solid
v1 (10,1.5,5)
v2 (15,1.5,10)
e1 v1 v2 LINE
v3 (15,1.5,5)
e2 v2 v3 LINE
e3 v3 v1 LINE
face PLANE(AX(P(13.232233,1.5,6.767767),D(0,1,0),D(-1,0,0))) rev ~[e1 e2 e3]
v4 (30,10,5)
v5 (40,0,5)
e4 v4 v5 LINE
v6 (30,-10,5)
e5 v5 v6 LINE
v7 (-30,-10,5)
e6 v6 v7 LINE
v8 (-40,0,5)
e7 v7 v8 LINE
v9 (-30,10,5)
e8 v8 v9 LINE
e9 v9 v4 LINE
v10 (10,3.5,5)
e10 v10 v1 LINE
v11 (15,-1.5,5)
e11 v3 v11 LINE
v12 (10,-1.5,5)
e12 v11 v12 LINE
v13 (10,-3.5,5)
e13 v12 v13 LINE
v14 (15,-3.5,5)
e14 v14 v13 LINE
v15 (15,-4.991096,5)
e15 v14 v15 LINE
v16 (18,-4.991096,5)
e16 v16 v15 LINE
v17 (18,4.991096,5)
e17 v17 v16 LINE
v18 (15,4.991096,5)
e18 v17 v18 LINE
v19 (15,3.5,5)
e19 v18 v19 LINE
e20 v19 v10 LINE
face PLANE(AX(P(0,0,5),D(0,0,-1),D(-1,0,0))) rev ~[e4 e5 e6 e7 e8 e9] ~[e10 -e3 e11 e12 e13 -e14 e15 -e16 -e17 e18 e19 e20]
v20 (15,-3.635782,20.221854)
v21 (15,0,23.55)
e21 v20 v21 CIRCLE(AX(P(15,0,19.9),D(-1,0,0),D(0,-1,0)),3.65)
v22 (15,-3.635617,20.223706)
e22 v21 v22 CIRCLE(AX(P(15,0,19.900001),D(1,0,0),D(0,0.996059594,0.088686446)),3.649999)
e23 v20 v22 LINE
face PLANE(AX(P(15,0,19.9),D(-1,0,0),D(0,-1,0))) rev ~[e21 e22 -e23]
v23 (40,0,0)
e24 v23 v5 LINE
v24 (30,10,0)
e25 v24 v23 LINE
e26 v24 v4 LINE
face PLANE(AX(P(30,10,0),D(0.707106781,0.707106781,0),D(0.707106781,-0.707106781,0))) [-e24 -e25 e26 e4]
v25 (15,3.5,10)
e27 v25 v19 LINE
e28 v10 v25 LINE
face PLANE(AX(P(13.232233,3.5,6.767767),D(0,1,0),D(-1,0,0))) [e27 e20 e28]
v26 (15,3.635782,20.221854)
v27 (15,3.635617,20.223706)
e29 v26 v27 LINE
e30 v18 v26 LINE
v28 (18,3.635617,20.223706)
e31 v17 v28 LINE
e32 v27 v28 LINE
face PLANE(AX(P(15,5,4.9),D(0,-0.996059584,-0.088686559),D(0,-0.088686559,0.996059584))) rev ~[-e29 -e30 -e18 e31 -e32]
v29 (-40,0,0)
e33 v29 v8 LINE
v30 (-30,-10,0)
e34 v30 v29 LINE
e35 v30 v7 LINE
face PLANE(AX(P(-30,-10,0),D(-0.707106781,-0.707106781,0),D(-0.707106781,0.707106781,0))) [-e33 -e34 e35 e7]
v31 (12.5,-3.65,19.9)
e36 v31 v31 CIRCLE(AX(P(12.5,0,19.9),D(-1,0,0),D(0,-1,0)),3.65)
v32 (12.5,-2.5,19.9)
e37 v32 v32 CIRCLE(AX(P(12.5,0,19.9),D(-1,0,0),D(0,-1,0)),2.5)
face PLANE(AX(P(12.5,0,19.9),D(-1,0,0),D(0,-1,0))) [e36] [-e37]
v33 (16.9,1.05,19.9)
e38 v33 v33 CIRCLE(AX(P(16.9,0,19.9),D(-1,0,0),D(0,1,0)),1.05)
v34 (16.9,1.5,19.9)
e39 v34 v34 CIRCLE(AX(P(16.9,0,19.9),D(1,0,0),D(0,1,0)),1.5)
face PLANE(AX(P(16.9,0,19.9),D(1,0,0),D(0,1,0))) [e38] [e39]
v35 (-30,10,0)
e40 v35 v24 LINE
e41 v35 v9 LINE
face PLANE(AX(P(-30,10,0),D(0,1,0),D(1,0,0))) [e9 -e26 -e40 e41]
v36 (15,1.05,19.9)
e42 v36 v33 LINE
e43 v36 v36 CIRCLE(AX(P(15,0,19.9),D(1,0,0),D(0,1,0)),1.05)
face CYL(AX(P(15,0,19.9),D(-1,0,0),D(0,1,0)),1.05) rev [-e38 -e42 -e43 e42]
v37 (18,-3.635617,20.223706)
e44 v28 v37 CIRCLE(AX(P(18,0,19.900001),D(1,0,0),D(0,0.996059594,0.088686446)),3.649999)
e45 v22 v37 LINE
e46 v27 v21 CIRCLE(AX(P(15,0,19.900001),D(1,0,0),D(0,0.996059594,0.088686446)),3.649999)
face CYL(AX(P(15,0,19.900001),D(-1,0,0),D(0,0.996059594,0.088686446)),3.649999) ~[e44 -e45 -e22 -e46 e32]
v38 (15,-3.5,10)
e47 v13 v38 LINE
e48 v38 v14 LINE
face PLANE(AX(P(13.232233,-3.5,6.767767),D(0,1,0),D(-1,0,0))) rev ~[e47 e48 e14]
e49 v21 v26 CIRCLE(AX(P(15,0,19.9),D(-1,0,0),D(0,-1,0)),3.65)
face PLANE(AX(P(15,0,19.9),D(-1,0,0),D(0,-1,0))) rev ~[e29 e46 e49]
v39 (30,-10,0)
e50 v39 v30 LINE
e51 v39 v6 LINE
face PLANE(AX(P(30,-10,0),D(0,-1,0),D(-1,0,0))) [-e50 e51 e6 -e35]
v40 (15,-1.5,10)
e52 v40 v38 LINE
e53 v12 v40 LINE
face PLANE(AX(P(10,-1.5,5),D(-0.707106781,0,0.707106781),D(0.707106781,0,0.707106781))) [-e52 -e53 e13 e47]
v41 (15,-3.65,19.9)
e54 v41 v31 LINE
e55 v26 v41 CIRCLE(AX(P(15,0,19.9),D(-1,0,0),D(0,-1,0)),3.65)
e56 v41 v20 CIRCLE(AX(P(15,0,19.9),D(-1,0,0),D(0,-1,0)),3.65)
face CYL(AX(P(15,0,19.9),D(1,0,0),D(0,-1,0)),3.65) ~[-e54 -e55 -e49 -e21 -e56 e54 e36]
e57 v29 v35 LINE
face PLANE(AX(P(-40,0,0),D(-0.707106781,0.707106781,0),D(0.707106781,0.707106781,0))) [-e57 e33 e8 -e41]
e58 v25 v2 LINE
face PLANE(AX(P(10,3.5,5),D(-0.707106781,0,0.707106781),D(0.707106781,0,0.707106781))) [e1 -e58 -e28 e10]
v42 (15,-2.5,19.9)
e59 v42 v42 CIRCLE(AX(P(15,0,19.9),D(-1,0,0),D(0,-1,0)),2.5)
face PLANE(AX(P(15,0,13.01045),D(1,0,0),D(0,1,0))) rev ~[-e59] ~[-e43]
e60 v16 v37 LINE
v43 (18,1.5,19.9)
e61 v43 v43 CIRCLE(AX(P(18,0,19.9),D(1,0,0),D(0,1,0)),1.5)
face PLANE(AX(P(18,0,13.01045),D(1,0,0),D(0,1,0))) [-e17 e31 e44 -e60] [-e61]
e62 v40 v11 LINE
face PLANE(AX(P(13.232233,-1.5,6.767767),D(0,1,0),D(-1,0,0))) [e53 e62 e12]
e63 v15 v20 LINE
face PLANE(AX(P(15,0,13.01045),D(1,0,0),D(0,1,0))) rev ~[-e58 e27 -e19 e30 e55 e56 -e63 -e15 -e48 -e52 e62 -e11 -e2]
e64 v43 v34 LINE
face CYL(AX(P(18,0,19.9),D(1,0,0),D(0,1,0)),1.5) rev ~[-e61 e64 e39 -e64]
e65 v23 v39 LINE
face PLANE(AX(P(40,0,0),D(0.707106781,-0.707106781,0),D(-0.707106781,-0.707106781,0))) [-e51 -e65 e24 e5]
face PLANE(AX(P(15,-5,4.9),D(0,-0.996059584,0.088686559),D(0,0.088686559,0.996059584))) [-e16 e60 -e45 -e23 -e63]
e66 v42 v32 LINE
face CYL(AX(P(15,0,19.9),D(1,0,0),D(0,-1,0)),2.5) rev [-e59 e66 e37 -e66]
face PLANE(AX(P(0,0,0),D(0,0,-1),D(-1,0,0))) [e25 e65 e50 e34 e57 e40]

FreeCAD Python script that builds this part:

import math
import FreeCAD as App
import Part
import Sketcher

V = App.Vector

doc = App.newDocument("Part")
body = doc.addObject("PartDesign::Body", "Body")

sketch1 = body.newObject("Sketcher::SketchObject", "Sketch")
sketch1.AttachmentSupport = (doc.getObject("XY_Plane"), [""])
sketch1.MapMode = "FlatFace"
sketch1.addGeometry(Part.LineSegment(V(30, 10, 0), V(-30, 10, 0)), False)
sketch1.addGeometry(Part.LineSegment(V(-30, 10, 0), V(-40, 0, 0)), False)
sketch1.addGeometry(Part.LineSegment(V(-40, 0, 0), V(-30, -10, 0)), False)
sketch1.addGeometry(Part.LineSegment(V(-30, -10, 0), V(30, -10, 0)), False)
sketch1.addGeometry(Part.LineSegment(V(30, -10, 0), V(40, 0, 0)), False)
sketch1.addGeometry(Part.LineSegment(V(40, 0, 0), V(30, 10, 0)), False)
sketch1.addConstraint(Sketcher.Constraint("Coincident", 0, 2, 1, 1))
sketch1.addConstraint(Sketcher.Constraint("Coincident", 1, 2, 2, 1))
sketch1.addConstraint(Sketcher.Constraint("Coincident", 2, 2, 3, 1))
sketch1.addConstraint(Sketcher.Constraint("Coincident", 3, 2, 4, 1))
sketch1.addConstraint(Sketcher.Constraint("Coincident", 4, 2, 5, 1))
sketch1.addConstraint(Sketcher.Constraint("Coincident", 5, 2, 0, 1))
sketch1.addConstraint(Sketcher.Constraint("Horizontal", 0))
sketch1.addConstraint(Sketcher.Constraint("Horizontal", 3))
sketch1.addConstraint(Sketcher.Constraint("Symmetric", 0, 2, 3, 2, -1, 1))
sketch1.addConstraint(Sketcher.Constraint("Symmetric", 1, 2, 4, 2, -1, 1))
sketch1.addConstraint(Sketcher.Constraint("PointOnObject", 1, 2, -1))
sketch1.addConstraint(Sketcher.Constraint("Perpendicular", 1, 2))
sketch1.addConstraint(Sketcher.Constraint("Perpendicular", 4, 5))
sketch1.addConstraint(Sketcher.Constraint("Vertical", 0, 2, 2, 2))
sketch1.addConstraint(Sketcher.Constraint("DistanceX", 0, 2, 0, 1, 60.0))
sketch1.addConstraint(Sketcher.Constraint("DistanceY", -1, 1, 0, 2, 10.0))
pad1 = body.newObject("PartDesign::Pad", "Pad")
pad1.Profile = sketch1
pad1.Length = 5

sketch2 = body.newObject("Sketcher::SketchObject", "Sketch001")
sketch2.AttachmentSupport = (doc.getObject("YZ_Plane"), [""])
sketch2.MapMode = "FlatFace"
sketch2.AttachmentOffset = App.Placement(V(0, 0, 15), App.Rotation())
sketch2.addGeometry(Part.LineSegment(V(-5, 4.9, 0), V(5, 4.9, 0)), False)
sketch2.addGeometry(Part.LineSegment(V(5, 4.9, 0), V(3.6, 20.2, 0)), False)
sketch2.addGeometry(Part.ArcOfCircle(Part.Circle(V(0, 19.9, 0), V(0, 0, 1), 3.6), math.radians(5), math.radians(175)), False)
sketch2.addGeometry(Part.LineSegment(V(-3.6, 20.2, 0), V(-5, 4.9, 0)), False)
sketch2.addGeometry(Part.Circle(V(0, 19.9, 0), V(0, 0, 1), 1.1), False)
sketch2.addConstraint(Sketcher.Constraint("Coincident", 0, 2, 1, 1))
sketch2.addConstraint(Sketcher.Constraint("Tangent", 1, 2, 2, 1))
sketch2.addConstraint(Sketcher.Constraint("Tangent", 2, 2, 3, 1))
sketch2.addConstraint(Sketcher.Constraint("Coincident", 3, 2, 0, 1))
sketch2.addConstraint(Sketcher.Constraint("Horizontal", 0))
sketch2.addConstraint(Sketcher.Constraint("Coincident", 4, 3, 2, 3))
sketch2.addConstraint(Sketcher.Constraint("Symmetric", 1, 2, 2, 2, -2))
sketch2.addConstraint(Sketcher.Constraint("Diameter", 4, 2.1))
sketch2.addConstraint(Sketcher.Constraint("DistanceX", 0, 1, 0, 2, 10.0))
sketch2.addConstraint(Sketcher.Constraint("Radius", 2, 3.649999))
sketch2.addConstraint(Sketcher.Constraint("DistanceY", 0, 2, 4, 3, 15.0))
sketch2.addConstraint(Sketcher.Constraint("DistanceY", -1, 1, 2, 3, 19.900001))
pad2 = body.newObject("PartDesign::Pad", "Pad001")
pad2.Profile = sketch2
pad2.Length = 3

sketch3 = body.newObject("Sketcher::SketchObject", "Sketch002")
sketch3.AttachmentSupport = (doc.getObject("YZ_Plane"), [""])
sketch3.MapMode = "FlatFace"
sketch3.AttachmentOffset = App.Placement(V(0, 0, 15), App.Rotation())
sketch3.addGeometry(Part.Circle(V(0, 19.9, 0), V(0, 0, 1), 3.6), False)
sketch3.addGeometry(Part.Circle(V(0, 19.9, 0), V(0, 0, 1), 2.5), False)
sketch3.addConstraint(Sketcher.Constraint("Coincident", 1, 3, 0, 3))
sketch3.addConstraint(Sketcher.Constraint("PointOnObject", 0, 3, -2))
sketch3.addConstraint(Sketcher.Constraint("Diameter", 1, 5.0))
sketch3.addConstraint(Sketcher.Constraint("Diameter", 0, 7.3))
sketch3.addConstraint(Sketcher.Constraint("DistanceY", -1, 1, 0, 3, 19.9))
pad3 = body.newObject("PartDesign::Pad", "Pad002")
pad3.Profile = sketch3
pad3.Length = 2.5
pad3.Reversed = True

sketch4 = body.newObject("Sketcher::SketchObject", "Sketch003")
sketch4.AttachmentSupport = (doc.getObject("YZ_Plane"), [""])
sketch4.MapMode = "FlatFace"
sketch4.AttachmentOffset = App.Placement(V(0, 0, 18), App.Rotation())
sketch4.addGeometry(Part.Circle(V(0, 19.9, 0), V(0, 0, 1), 1.5), False)
sketch4.addConstraint(Sketcher.Constraint("PointOnObject", 0, 3, -2))
sketch4.addConstraint(Sketcher.Constraint("Diameter", 0, 3.0))
sketch4.addConstraint(Sketcher.Constraint("DistanceY", -1, 1, 0, 3, 19.9))
pocket1 = body.newObject("PartDesign::Pocket", "Pocket")
pocket1.Profile = sketch4
pocket1.Length = 1.1

sketch5 = body.newObject("Sketcher::SketchObject", "Sketch004")
sketch5.AttachmentSupport = (doc.getObject("XZ_Plane"), [""])
sketch5.MapMode = "FlatFace"
sketch5.AttachmentOffset = App.Placement(V(0, 0, 1.5), App.Rotation())
sketch5.addGeometry(Part.LineSegment(V(15, 10, 0), V(10, 5, 0)), False)
sketch5.addGeometry(Part.LineSegment(V(10, 5, 0), V(15, 5, 0)), False)
sketch5.addGeometry(Part.LineSegment(V(15, 5, 0), V(15, 10, 0)), False)
sketch5.addConstraint(Sketcher.Constraint("Coincident", 0, 2, 1, 1))
sketch5.addConstraint(Sketcher.Constraint("Coincident", 1, 2, 2, 1))
sketch5.addConstraint(Sketcher.Constraint("Coincident", 2, 2, 0, 1))
sketch5.addConstraint(Sketcher.Constraint("Horizontal", 1))
sketch5.addConstraint(Sketcher.Constraint("Vertical", 2))
sketch5.addConstraint(Sketcher.Constraint("Equal", 1, 2))
sketch5.addConstraint(Sketcher.Constraint("DistanceX", 1, 1, 1, 2, 5.0))
sketch5.addConstraint(Sketcher.Constraint("DistanceX", -1, 1, 0, 2, 10.0))
sketch5.addConstraint(Sketcher.Constraint("DistanceY", -1, 1, 0, 2, 5.0))
pad4 = body.newObject("PartDesign::Pad", "Pad003")
pad4.Profile = sketch5
pad4.Length = 2
doc.recompute()

linearpattern = body.newObject("PartDesign::LinearPattern", "LinearPattern")
linearpattern.Originals = [pad4]
linearpattern.Direction = (doc.getObject("Y_Axis"), [""])
linearpattern.Mode = "offset"
linearpattern.Offset = 5
linearpattern.Occurrences = 2
body.Tip = linearpattern

doc.recompute()
